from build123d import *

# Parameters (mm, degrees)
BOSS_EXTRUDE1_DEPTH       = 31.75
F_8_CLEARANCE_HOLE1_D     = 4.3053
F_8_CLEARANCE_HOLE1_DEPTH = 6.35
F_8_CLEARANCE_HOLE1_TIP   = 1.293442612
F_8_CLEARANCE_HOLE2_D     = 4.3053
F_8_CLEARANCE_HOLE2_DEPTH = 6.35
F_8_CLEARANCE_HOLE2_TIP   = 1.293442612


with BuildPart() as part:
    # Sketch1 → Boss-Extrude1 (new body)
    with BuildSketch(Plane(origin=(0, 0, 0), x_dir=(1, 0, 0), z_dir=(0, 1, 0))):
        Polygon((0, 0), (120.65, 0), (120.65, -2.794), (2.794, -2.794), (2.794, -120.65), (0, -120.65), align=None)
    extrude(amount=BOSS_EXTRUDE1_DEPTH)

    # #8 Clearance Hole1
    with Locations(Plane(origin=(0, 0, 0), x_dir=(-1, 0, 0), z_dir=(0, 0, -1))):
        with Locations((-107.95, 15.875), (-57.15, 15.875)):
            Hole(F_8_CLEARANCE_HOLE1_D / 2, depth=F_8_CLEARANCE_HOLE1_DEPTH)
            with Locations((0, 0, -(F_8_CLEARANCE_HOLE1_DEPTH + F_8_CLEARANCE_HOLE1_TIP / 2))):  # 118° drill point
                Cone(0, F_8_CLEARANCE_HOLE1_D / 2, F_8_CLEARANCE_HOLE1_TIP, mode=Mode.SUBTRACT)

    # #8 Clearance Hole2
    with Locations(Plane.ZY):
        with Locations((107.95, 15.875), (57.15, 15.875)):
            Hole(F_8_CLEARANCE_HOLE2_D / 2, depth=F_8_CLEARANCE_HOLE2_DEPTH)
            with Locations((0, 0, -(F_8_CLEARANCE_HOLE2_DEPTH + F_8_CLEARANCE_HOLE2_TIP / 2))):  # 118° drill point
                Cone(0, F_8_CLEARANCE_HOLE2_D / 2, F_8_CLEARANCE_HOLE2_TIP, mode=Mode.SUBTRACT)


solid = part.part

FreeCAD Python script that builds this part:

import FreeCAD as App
import Part
import Sketcher
Q = App.Units.Quantity


def add_polygon(sketch, points):
    """Adds a closed chain of lines whose ends are joined by coincident constraints."""
    first, n = sketch.GeometryCount, len(points)
    for a, b in zip(points, points[1:] + points[:1]):
        sketch.addGeometry(Part.LineSegment(App.Vector(*a, 0), App.Vector(*b, 0)), False)
    for i in range(n):
        sketch.addConstraint(Sketcher.Constraint("Coincident", first + i, 2, first + (i + 1) % n, 1))

doc = App.newDocument("Part")
body = doc.addObject("PartDesign::Body", "Body")

# Sketch on XZ plane
sketch1 = body.newObject("Sketcher::SketchObject", "Sketch")
sketch1.AttachmentSupport = (doc.getObject("XZ_Plane"), [""])
sketch1.MapMode = "FlatFace"
add_polygon(sketch1, [(120.7, 0), (0, 0), (0, 120.7), (2.8, 120.7), (2.8, 2.8), (120.7, 2.8)])  # lines 0-5
sketch1.addConstraint([
    Sketcher.Constraint("Horizontal", 0),
    Sketcher.Constraint("Vertical", 1),
    Sketcher.Constraint("Horizontal", 2),
    Sketcher.Constraint("Vertical", 3),
    Sketcher.Constraint("Horizontal", 4),
    Sketcher.Constraint("Vertical", 5),
    Sketcher.Constraint("Coincident", 0, 2, -1, 1),
    Sketcher.Constraint("Equal", 0, 1),
    Sketcher.Constraint("Equal", 4, 3),
    Sketcher.Constraint("DistanceX", 0, 2, 0, 1, Q("4.75 in")),
    Sketcher.Constraint("DistanceX", 2, 1, 2, 2, Q("0.11 in")),
])
pad1 = body.newObject("PartDesign::Pad", "Pad")
pad1.Profile = sketch1
pad1.Length = Q("1.25 in")
pad1.Reversed = True

# Sketch on XY plane
sketch2 = body.newObject("Sketcher::SketchObject", "Sketch001")
sketch2.AttachmentSupport = (doc.getObject("XY_Plane"), [""])
sketch2.MapMode = "FlatFace"
sketch2.addGeometry([
    Part.Circle(App.Vector(108, 15.9, 0), App.Vector(0, 0, 1), 2.2),
    Part.Circle(App.Vector(57.1, 15.9, 0), App.Vector(0, 0, 1), 2.2),
], False)
sketch2.addConstraint([
    Sketcher.Constraint("Equal", 0, 1),
    Sketcher.Constraint("Horizontal", 0, 3, 1, 3),
    Sketcher.Constraint("DistanceX", 1, 3, 0, 3, Q("2 in")),
    Sketcher.Constraint("Diameter", 0, Q("0.1695 in")),
    Sketcher.Constraint("DistanceX", -1, 1, 0, 3, Q("4.25 in")),
    Sketcher.Constraint("DistanceY", -1, 1, 0, 3, Q("0.625 in")),
])
doc.recompute()
hole = body.newObject("PartDesign::Hole", "Hole")
hole.Profile = sketch2
hole.ThreadType = "None"
hole.Diameter = Q("0.1695 in")
hole.DepthType = "Dimension"
hole.Depth = Q("0.25 in")
hole.DrillPoint = "Angled"
hole.DrillPointAngle = 118
hole.Reversed = True

# Sketch on YZ plane
sketch3 = body.newObject("Sketcher::SketchObject", "Sketch002")
sketch3.AttachmentSupport = (doc.getObject("YZ_Plane"), [""])
sketch3.MapMode = "FlatFace"
sketch3.addGeometry([
    Part.Circle(App.Vector(15.9, 108, 0), App.Vector(0, 0, 1), 2.2),
    Part.Circle(App.Vector(15.9, 57.1, 0), App.Vector(0, 0, 1), 2.2),
], False)
sketch3.addConstraint([
    Sketcher.Constraint("Equal", 0, 1),
    Sketcher.Constraint("Vertical", 0, 3, 1, 3),
    Sketcher.Constraint("DistanceY", 1, 3, 0, 3, Q("2 in")),
    Sketcher.Constraint("Diameter", 0, Q("0.1695 in")),
    Sketcher.Constraint("DistanceY", -1, 1, 0, 3, Q("4.25 in")),
    Sketcher.Constraint("DistanceX", -1, 1, 0, 3, Q("0.625 in")),
])
doc.recompute()
hole2 = body.newObject("PartDesign::Hole", "Hole001")
hole2.Profile = sketch3
hole2.ThreadType = "None"
hole2.Diameter = Q("0.1695 in")
hole2.DepthType = "Dimension"
hole2.Depth = Q("0.25 in")
hole2.DrillPoint = "Angled"
hole2.DrillPointAngle = 118
hole2.Reversed = True

doc.recompute()
